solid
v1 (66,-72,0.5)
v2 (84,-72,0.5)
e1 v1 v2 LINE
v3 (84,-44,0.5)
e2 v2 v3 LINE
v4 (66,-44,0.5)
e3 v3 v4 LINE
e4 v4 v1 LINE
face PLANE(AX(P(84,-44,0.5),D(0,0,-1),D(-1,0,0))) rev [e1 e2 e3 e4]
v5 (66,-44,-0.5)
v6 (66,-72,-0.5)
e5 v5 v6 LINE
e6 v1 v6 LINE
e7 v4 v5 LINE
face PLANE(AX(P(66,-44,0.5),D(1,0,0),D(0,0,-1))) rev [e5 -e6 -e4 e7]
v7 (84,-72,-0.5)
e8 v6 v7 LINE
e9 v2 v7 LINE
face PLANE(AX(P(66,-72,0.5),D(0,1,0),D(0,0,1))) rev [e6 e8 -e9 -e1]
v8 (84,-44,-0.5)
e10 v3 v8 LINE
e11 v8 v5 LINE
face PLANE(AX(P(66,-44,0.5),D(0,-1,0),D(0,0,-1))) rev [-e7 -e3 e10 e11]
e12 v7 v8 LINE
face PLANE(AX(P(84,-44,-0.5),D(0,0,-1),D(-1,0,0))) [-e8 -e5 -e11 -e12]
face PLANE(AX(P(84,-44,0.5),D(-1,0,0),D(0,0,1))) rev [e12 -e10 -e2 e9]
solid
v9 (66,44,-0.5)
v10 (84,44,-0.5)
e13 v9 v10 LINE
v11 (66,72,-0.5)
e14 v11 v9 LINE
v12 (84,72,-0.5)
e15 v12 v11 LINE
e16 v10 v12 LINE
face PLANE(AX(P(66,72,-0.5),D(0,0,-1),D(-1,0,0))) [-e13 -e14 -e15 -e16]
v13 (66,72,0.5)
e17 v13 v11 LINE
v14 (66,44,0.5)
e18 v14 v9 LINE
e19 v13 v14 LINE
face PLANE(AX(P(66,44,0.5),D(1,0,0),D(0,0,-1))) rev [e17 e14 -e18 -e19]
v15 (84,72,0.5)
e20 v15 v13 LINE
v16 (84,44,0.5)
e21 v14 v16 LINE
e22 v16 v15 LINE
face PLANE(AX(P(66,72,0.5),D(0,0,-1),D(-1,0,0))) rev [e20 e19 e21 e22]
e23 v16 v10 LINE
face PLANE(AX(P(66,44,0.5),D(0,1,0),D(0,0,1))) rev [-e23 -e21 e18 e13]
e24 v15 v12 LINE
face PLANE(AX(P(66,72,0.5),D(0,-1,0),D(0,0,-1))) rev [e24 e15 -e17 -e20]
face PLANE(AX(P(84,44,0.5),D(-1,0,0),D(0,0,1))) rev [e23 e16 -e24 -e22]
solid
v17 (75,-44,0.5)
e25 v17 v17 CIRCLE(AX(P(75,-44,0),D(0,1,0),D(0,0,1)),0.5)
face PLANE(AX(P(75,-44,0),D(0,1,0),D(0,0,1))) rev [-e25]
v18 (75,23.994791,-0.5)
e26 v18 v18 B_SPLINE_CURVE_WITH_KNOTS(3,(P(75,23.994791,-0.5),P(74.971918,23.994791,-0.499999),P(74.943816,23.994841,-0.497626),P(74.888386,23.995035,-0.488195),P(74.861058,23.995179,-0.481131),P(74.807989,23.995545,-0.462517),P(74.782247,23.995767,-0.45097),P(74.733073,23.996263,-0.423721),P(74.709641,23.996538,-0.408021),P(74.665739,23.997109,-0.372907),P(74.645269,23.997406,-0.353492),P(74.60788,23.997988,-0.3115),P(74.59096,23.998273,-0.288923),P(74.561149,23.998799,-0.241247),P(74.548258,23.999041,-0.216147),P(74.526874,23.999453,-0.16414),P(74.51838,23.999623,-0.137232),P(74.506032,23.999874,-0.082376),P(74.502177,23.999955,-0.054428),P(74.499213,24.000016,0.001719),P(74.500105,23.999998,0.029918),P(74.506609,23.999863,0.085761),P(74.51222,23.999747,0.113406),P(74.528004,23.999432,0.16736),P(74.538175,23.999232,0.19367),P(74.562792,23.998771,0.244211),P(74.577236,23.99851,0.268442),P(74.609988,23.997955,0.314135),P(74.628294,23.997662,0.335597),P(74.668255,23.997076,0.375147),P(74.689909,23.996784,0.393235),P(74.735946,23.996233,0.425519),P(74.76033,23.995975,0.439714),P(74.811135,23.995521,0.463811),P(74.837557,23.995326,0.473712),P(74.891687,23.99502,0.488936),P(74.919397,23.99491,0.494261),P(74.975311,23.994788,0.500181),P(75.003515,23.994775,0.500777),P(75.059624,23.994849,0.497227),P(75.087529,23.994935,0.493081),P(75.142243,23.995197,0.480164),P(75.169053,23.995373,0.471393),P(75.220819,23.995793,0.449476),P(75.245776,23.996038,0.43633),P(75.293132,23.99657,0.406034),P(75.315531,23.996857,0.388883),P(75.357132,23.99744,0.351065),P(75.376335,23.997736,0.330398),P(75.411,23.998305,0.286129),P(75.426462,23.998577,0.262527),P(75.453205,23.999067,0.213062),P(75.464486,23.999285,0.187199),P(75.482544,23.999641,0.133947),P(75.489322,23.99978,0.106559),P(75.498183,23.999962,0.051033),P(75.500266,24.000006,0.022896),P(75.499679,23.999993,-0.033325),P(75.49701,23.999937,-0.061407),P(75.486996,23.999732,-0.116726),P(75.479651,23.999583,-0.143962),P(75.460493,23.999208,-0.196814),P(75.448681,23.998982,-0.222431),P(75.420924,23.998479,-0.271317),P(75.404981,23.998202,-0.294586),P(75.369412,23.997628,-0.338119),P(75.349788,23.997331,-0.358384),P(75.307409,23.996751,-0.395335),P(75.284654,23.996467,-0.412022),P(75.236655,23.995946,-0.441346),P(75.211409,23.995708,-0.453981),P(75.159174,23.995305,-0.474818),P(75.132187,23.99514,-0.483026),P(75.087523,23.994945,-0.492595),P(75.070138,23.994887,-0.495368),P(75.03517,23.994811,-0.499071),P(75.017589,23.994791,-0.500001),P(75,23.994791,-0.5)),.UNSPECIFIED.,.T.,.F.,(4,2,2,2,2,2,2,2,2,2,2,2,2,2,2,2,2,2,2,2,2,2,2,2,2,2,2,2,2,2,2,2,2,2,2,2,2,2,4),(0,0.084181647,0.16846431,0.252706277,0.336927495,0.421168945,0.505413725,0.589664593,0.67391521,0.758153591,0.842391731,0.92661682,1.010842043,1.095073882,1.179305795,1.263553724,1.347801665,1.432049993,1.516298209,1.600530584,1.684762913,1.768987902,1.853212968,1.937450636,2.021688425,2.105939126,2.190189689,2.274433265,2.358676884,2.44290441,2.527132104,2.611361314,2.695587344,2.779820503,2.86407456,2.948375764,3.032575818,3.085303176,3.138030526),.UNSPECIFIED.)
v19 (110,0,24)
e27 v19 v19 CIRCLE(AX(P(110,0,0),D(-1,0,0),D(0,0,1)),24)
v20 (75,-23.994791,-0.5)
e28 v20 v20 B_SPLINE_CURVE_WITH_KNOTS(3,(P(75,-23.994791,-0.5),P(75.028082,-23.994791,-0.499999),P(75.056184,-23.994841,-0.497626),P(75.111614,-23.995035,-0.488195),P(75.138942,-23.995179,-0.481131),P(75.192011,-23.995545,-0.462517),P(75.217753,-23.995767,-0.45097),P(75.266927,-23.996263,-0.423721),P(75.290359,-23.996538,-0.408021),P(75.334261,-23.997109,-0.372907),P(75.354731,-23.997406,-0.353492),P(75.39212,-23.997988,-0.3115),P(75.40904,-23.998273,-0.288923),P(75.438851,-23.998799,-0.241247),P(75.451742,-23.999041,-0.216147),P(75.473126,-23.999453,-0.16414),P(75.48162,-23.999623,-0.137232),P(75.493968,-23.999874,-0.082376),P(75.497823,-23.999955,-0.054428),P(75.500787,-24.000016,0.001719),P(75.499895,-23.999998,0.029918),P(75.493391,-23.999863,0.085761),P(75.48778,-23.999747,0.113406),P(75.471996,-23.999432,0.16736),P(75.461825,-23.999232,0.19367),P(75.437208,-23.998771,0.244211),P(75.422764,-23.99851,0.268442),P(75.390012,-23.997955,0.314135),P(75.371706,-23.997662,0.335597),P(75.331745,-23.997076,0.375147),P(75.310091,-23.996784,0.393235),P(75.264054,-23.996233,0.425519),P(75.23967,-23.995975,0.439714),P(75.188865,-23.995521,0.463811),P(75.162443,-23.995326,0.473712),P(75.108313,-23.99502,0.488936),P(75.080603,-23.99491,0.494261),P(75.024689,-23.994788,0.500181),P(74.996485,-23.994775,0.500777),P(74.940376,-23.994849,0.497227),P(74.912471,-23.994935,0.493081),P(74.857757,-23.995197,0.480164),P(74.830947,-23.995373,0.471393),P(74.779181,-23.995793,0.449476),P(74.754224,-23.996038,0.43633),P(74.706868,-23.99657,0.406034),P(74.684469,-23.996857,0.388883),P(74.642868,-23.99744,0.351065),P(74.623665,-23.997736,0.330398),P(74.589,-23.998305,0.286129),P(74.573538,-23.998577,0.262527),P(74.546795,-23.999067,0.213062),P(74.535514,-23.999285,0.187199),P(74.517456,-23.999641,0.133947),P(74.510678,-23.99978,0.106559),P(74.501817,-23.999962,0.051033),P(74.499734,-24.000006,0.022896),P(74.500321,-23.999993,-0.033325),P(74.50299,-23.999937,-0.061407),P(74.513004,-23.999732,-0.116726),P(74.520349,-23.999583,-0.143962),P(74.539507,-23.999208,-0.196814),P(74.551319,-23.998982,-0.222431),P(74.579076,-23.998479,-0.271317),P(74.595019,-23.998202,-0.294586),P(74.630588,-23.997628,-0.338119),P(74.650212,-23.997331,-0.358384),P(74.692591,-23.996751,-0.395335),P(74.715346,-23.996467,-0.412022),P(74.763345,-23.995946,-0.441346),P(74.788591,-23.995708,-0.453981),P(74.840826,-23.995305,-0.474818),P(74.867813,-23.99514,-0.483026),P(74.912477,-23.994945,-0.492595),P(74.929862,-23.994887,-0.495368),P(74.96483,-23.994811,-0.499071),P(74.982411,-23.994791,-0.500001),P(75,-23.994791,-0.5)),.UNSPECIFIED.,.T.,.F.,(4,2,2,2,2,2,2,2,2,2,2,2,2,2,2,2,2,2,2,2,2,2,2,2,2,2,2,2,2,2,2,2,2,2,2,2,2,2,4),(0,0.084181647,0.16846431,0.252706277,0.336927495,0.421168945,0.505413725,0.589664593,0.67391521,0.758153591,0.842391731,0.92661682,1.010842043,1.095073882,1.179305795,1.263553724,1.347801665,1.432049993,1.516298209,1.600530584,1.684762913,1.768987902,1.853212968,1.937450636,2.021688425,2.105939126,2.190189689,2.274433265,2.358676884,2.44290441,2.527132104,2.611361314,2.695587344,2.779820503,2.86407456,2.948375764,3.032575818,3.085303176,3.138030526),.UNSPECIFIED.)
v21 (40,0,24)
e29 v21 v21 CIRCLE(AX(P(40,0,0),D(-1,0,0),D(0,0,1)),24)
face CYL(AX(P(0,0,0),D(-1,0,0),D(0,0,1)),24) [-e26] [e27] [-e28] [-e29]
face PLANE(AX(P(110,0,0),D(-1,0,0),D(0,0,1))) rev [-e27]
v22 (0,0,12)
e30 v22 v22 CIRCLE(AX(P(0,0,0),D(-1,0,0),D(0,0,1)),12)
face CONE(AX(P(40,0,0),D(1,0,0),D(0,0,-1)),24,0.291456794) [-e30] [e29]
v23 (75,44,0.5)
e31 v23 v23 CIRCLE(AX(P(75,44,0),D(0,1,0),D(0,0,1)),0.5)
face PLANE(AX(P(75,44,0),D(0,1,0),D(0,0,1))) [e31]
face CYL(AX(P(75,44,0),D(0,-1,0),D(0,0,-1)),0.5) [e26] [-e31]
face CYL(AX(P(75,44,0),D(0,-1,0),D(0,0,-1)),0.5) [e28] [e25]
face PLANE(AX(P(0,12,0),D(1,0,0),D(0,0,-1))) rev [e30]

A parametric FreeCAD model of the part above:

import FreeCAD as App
import Part
import Sketcher

V = App.Vector
Q = App.Units.Quantity


def add_polygon(sketch, points):
    """Adds a closed chain of lines whose ends are joined by coincident constraints."""
    first, n = sketch.GeometryCount, len(points)
    for a, b in zip(points, points[1:] + points[:1]):
        sketch.addGeometry(Part.LineSegment(App.Vector(*a, 0), App.Vector(*b, 0)), False)
    for i in range(n):
        sketch.addConstraint(Sketcher.Constraint("Coincident", first + i, 2, first + (i + 1) % n, 1))

doc = App.newDocument("Part")
params = doc.addObject("Spreadsheet::Sheet", "Params")
for row, (alias, value) in enumerate([
    ("sketch1_width", "110 mm"),
    ("sketch1_width2", "70 mm"),
    ("sketch1_height", "24 mm"),
    ("sketch1_height2", "12 mm"),
    ("revolution_angle", "360 deg"),
    ("sketch2_diameter", "1 mm"),
    ("pad1_length", "88 mm"),
    ("sketch3_width", "18 mm"),
    ("sketch3_height", "28 mm"),
    ("pad2_length", "1 mm"),
    ("sketch4_width", "18 mm"),
    ("sketch4_height", "28 mm"),
    ("pad3_length", "1 mm"),
], start=1):
    params.set(f"A{row}", alias)
    params.set(f"B{row}", "=" + value)
    params.setAlias(f"B{row}", alias)

body = doc.addObject("PartDesign::Body", "Body")

sketch1 = body.newObject("Sketcher::SketchObject", "Sketch")
sketch1.AttachmentSupport = (doc.getObject("XY_Plane"), [""])
sketch1.MapMode = "FlatFace"
add_polygon(sketch1, [(0, 0), (110, 0), (110, 24), (40, 24), (0, 12)])
sketch1.addConstraint(Sketcher.Constraint("Horizontal", 0))
sketch1.addConstraint(Sketcher.Constraint("Vertical", 1))
sketch1.addConstraint(Sketcher.Constraint("Horizontal", 2))
sketch1.addConstraint(Sketcher.Constraint("Vertical", 4))
sketch1.addConstraint(Sketcher.Constraint("Coincident", 4, 2, -1, 1))
sketch1.addConstraint(Sketcher.Constraint("DistanceX", 0, 1, 0, 2, Q("110 mm")))
sketch1.addConstraint(Sketcher.Constraint("DistanceX", 2, 2, 2, 1, Q("70 mm")))
sketch1.addConstraint(Sketcher.Constraint("DistanceY", 1, 1, 1, 2, Q("24 mm")))
sketch1.addConstraint(Sketcher.Constraint("DistanceY", 4, 2, 4, 1, Q("12 mm")))
sketch1.setExpression("Constraints[10]", "Params.sketch1_width")
sketch1.setExpression("Constraints[11]", "Params.sketch1_width2")
sketch1.setExpression("Constraints[12]", "Params.sketch1_height")
sketch1.setExpression("Constraints[13]", "Params.sketch1_height2")
revolution = body.newObject("PartDesign::Revolution", "Revolution")
revolution.Profile = sketch1
revolution.ReferenceAxis = (sketch1, ["H_Axis"])
revolution.setExpression("Angle", "Params.revolution_angle")

sketch2 = body.newObject("Sketcher::SketchObject", "Sketch001")
sketch2.AttachmentSupport = (doc.getObject("XZ_Plane"), [""])
sketch2.MapMode = "FlatFace"
sketch2.addGeometry(Part.Circle(V(75, 0, 0), V(0, 0, 1), 0.5), False)
sketch2.addConstraint(Sketcher.Constraint("PointOnObject", 0, 3, -1))
sketch2.addConstraint(Sketcher.Constraint("Diameter", 0, Q("1 mm")))
sketch2.addConstraint(Sketcher.Constraint("DistanceX", -1, 1, 0, 3, Q("75 mm")))
sketch2.setExpression("Constraints[1]", "Params.sketch2_diameter")
pad1 = body.newObject("PartDesign::Pad", "Pad")
pad1.Profile = sketch2
pad1.setExpression("Length", "Params.pad1_length")
pad1.Midplane = True
body2 = doc.addObject("PartDesign::Body", "Body001")

sketch3 = body2.newObject("Sketcher::SketchObject", "Sketch002")
sketch3.AttachmentSupport = (doc.getObject("XY_Plane001"), [""])
sketch3.MapMode = "FlatFace"
add_polygon(sketch3, [(66, 72), (66, 44), (84, 44), (84, 72)])
sketch3.addConstraint(Sketcher.Constraint("Vertical", 0))
sketch3.addConstraint(Sketcher.Constraint("Horizontal", 1))
sketch3.addConstraint(Sketcher.Constraint("Vertical", 2))
sketch3.addConstraint(Sketcher.Constraint("Horizontal", 3))
sketch3.addConstraint(Sketcher.Constraint("DistanceX", 1, 1, 1, 2, Q("18 mm")))
sketch3.addConstraint(Sketcher.Constraint("DistanceY", 0, 2, 0, 1, Q("28 mm")))
sketch3.addConstraint(Sketcher.Constraint("DistanceX", -1, 1, 0, 2, Q("66 mm")))
sketch3.addConstraint(Sketcher.Constraint("DistanceY", -1, 1, 0, 2, Q("44 mm")))
sketch3.setExpression("Constraints[8]", "Params.sketch3_width")
sketch3.setExpression("Constraints[9]", "Params.sketch3_height")
pad2 = body2.newObject("PartDesign::Pad", "Pad001")
pad2.Profile = sketch3
pad2.setExpression("Length", "Params.pad2_length")
pad2.Midplane = True
body3 = doc.addObject("PartDesign::Body", "Body002")

sketch4 = body3.newObject("Sketcher::SketchObject", "Sketch003")
sketch4.AttachmentSupport = (doc.getObject("XY_Plane002"), [""])
sketch4.MapMode = "FlatFace"
add_polygon(sketch4, [(66, -44), (66, -72), (84, -72), (84, -44)])
sketch4.addConstraint(Sketcher.Constraint("Vertical", 0))
sketch4.addConstraint(Sketcher.Constraint("Horizontal", 1))
sketch4.addConstraint(Sketcher.Constraint("Vertical", 2))
sketch4.addConstraint(Sketcher.Constraint("Horizontal", 3))
sketch4.addConstraint(Sketcher.Constraint("DistanceX", 1, 1, 1, 2, Q("18 mm")))
sketch4.addConstraint(Sketcher.Constraint("DistanceY", 0, 2, 0, 1, Q("28 mm")))
sketch4.addConstraint(Sketcher.Constraint("DistanceX", -1, 1, 0, 2, Q("66 mm")))
sketch4.addConstraint(Sketcher.Constraint("DistanceY", 0, 2, -1, 1, Q("72 mm")))
sketch4.setExpression("Constraints[8]", "Params.sketch4_width")
sketch4.setExpression("Constraints[9]", "Params.sketch4_height")
pad3 = body3.newObject("PartDesign::Pad", "Pad002")
pad3.Profile = sketch4
pad3.setExpression("Length", "Params.pad3_length")
pad3.Midplane = True

doc.recompute()
